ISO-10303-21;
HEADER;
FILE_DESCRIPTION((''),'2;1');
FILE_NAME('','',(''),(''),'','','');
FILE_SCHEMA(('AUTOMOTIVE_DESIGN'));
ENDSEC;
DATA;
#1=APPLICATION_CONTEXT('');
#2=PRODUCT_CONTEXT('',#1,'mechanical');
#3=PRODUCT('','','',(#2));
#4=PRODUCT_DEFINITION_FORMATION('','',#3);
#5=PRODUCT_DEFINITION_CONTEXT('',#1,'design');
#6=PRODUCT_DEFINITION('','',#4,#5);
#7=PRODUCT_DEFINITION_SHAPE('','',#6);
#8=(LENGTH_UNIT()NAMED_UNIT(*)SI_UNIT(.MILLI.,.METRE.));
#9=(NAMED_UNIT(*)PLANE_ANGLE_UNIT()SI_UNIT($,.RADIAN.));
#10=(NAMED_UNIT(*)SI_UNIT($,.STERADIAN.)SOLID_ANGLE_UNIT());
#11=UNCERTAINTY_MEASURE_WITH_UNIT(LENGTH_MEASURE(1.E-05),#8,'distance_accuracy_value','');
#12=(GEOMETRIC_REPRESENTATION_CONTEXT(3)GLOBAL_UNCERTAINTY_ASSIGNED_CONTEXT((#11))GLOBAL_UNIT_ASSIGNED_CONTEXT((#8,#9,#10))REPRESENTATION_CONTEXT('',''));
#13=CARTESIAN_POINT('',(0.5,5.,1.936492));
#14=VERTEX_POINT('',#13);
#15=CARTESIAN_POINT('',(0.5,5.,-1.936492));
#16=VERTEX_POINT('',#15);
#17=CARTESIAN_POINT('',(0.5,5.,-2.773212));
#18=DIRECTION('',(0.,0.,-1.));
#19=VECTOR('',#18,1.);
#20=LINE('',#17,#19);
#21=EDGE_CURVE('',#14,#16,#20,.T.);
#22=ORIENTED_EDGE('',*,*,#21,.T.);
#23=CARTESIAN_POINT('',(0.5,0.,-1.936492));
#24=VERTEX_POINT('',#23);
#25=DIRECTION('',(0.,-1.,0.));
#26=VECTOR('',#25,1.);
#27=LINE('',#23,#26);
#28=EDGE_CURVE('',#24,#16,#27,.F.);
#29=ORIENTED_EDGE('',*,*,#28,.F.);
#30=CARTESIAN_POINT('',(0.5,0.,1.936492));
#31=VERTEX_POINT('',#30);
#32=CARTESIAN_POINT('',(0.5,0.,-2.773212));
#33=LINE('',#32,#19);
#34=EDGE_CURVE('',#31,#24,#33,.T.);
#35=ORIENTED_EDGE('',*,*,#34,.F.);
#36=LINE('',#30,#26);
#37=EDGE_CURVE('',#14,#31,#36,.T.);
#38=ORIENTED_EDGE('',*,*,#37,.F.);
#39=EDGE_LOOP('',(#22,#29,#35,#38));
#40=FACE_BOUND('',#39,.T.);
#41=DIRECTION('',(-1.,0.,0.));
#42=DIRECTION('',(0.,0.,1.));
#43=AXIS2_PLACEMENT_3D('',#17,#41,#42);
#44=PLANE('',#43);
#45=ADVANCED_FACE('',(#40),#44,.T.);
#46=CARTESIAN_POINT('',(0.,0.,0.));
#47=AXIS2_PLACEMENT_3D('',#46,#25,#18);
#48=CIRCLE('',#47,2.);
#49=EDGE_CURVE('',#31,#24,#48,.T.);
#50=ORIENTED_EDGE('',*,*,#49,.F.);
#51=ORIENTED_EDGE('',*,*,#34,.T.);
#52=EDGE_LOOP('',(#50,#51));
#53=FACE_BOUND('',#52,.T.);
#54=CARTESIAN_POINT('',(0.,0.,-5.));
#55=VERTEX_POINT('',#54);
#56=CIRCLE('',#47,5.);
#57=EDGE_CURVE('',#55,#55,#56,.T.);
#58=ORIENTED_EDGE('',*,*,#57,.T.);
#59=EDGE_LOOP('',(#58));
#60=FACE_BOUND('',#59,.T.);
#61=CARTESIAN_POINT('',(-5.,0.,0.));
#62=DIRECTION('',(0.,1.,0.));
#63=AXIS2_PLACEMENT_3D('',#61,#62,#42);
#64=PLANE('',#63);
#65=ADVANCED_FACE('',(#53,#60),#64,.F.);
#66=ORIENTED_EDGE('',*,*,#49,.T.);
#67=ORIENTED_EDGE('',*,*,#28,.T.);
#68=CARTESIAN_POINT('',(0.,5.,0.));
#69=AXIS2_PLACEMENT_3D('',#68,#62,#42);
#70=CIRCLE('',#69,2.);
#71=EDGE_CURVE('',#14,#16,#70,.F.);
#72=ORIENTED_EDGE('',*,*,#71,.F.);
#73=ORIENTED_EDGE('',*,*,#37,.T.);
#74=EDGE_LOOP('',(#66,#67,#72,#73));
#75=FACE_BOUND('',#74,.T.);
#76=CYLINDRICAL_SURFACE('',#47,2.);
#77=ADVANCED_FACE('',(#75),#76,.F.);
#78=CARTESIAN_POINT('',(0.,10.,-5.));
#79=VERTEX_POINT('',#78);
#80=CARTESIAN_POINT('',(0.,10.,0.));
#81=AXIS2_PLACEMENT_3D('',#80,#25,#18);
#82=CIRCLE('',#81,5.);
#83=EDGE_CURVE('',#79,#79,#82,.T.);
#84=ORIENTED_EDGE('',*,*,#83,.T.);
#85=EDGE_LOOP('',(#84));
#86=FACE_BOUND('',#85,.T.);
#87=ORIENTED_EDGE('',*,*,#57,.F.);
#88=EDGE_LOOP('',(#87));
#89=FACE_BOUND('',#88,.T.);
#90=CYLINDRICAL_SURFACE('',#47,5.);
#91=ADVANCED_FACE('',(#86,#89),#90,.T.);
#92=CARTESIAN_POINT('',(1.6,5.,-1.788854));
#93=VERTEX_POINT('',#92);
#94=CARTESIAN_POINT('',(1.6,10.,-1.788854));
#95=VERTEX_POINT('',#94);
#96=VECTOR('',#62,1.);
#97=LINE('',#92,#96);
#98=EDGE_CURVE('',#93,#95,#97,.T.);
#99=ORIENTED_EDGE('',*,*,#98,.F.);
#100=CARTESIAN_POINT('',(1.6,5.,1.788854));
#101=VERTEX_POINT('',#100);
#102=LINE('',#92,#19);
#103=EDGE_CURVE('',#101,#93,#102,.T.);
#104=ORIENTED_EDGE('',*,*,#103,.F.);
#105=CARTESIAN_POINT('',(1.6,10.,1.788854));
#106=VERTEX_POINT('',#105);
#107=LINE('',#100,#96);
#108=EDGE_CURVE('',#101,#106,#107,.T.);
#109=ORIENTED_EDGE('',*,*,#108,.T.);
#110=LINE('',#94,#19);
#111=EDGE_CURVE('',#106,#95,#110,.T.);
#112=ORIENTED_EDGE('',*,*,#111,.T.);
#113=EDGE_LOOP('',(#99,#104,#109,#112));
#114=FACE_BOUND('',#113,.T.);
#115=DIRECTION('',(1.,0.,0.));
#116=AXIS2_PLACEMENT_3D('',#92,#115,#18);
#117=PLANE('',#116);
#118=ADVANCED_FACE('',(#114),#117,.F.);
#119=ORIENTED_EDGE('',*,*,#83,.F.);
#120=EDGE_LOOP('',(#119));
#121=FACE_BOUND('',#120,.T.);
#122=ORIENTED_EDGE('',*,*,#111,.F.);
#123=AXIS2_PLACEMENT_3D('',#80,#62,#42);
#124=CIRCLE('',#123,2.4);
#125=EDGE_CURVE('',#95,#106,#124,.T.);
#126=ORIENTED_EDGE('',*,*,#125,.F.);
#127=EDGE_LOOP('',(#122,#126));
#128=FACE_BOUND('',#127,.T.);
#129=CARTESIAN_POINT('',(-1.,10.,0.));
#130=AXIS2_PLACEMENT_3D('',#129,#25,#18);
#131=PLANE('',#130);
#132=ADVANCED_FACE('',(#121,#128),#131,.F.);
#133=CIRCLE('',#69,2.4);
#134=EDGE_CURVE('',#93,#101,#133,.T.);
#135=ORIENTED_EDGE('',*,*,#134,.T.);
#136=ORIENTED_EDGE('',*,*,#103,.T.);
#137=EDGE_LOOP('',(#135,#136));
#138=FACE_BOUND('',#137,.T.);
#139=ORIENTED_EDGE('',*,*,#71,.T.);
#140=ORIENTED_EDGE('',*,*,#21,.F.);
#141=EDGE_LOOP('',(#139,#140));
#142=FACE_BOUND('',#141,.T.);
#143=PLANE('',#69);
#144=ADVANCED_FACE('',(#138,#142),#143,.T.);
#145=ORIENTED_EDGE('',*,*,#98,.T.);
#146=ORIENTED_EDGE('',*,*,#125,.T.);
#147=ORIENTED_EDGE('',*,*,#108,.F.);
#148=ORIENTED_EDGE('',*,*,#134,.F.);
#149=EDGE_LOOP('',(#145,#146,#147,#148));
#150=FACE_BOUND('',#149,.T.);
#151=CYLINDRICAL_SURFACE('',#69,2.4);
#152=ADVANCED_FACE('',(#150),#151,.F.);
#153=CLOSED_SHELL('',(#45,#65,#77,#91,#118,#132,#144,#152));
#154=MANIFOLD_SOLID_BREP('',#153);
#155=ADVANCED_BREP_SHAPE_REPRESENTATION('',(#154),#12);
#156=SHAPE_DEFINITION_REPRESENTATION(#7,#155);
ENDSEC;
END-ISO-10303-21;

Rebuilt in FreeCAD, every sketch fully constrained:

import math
import FreeCAD as App
import Part
import Sketcher
Q = App.Units.Quantity

doc = App.newDocument("Part")
params = doc.addObject("Spreadsheet::Sheet", "Params")
for row, (alias, value) in enumerate([
    ("sketch1_width", "4 mm"),
    ("sketch1_width2", "3 mm"),
    ("sketch1_height", "10 mm"),
    ("revolution_angle", "360 deg"),
    ("sketch2_radius", "2.4 mm"),
    ("pocket1_length", "5 mm"),
    ("pad1_length", "5 mm"),
], start=1):
    params.set(f"A{row}", alias)
    params.set(f"B{row}", "=" + value)
    params.setAlias(f"B{row}", alias)

body = doc.addObject("PartDesign::Body", "Body")

sketch1 = doc.addObject("Sketcher::SketchObject", "Sketch")
body.addObject(sketch1)
sketch1.AttachmentSupport = (doc.XY_Plane, [""])
sketch1.MapMode = "FlatFace"
sketch1.addGeometry(Part.LineSegment(App.Vector(-1, 10, 0), App.Vector(-5, 10, 0)), False)
sketch1.addGeometry(Part.LineSegment(App.Vector(-5, 10, 0), App.Vector(-5, 0, 0)), False)
sketch1.addGeometry(Part.LineSegment(App.Vector(-5, 0, 0), App.Vector(-2, 0, 0)), False)
sketch1.addGeometry(Part.LineSegment(App.Vector(-2, 0, 0), App.Vector(-2, 5, 0)), False)
sketch1.addGeometry(Part.LineSegment(App.Vector(-2, 5, 0), App.Vector(-1, 5, 0)), False)
sketch1.addGeometry(Part.LineSegment(App.Vector(-1, 5, 0), App.Vector(-1, 10, 0)), False)
sketch1.addConstraint(Sketcher.Constraint("Coincident", 0, 2, 1, 1))
sketch1.addConstraint(Sketcher.Constraint("Coincident", 1, 2, 2, 1))
sketch1.addConstraint(Sketcher.Constraint("Coincident", 2, 2, 3, 1))
sketch1.addConstraint(Sketcher.Constraint("Coincident", 3, 2, 4, 1))
sketch1.addConstraint(Sketcher.Constraint("Coincident", 4, 2, 5, 1))
sketch1.addConstraint(Sketcher.Constraint("Coincident", 5, 2, 0, 1))
sketch1.addConstraint(Sketcher.Constraint("Horizontal", 0))
sketch1.addConstraint(Sketcher.Constraint("Vertical", 1))
sketch1.addConstraint(Sketcher.Constraint("Horizontal", 2))
sketch1.addConstraint(Sketcher.Constraint("Vertical", 3))
sketch1.addConstraint(Sketcher.Constraint("Horizontal", 4))
sketch1.addConstraint(Sketcher.Constraint("Vertical", 5))
sketch1.addConstraint(Sketcher.Constraint("PointOnObject", 1, 2, -1))
sketch1.addConstraint(Sketcher.Constraint("Equal", 3, 5))
sketch1.addConstraint(Sketcher.Constraint("DistanceX", 0, 2, 0, 1, Q("4 mm")))
sketch1.addConstraint(Sketcher.Constraint("DistanceX", 2, 1, 2, 2, Q("3 mm")))
sketch1.addConstraint(Sketcher.Constraint("DistanceY", 1, 2, 1, 1, Q("10 mm")))
sketch1.addConstraint(Sketcher.Constraint("DistanceX", 0, 2, -1, 1, Q("5 mm")))
sketch1.setExpression("Constraints[14]", "Params.sketch1_width")
sketch1.setExpression("Constraints[15]", "Params.sketch1_width2")
sketch1.setExpression("Constraints[16]", "Params.sketch1_height")
revolution = doc.addObject("PartDesign::Revolution", "Revolution")
body.addObject(revolution)
revolution.Profile = sketch1
revolution.ReferenceAxis = (sketch1, ["V_Axis"])
revolution.setExpression("Angle", "Params.revolution_angle")

sketch2 = doc.addObject("Sketcher::SketchObject", "Sketch001")
body.addObject(sketch2)
sketch2.AttachmentSupport = (doc.XZ_Plane, [""])
sketch2.MapMode = "FlatFace"
sketch2.AttachmentOffset = App.Placement(App.Vector(0, 0, -10), App.Rotation())
sketch2.addGeometry(Part.LineSegment(App.Vector(1.6, 1.788854, 0), App.Vector(1.6, -1.788854, 0)), False)
sketch2.addGeometry(Part.ArcOfCircle(Part.Circle(App.Vector(0, 0, 0), App.Vector(0, 0, 1), 2.4), math.radians(48.189685), math.radians(311.810315)), False)
sketch2.addConstraint(Sketcher.Constraint("Coincident", 0, 1, 1, 1))
sketch2.addConstraint(Sketcher.Constraint("Coincident", 1, 2, 0, 2))
sketch2.addConstraint(Sketcher.Constraint("Vertical", 0))
sketch2.addConstraint(Sketcher.Constraint("Coincident", 1, 3, -1, 1))
sketch2.addConstraint(Sketcher.Constraint("Radius", 1, Q("2.4 mm")))
sketch2.addConstraint(Sketcher.Constraint("DistanceX", -1, 1, 0, 1, Q("1.6 mm")))
sketch2.setExpression("Constraints[4]", "Params.sketch2_radius")
pocket1 = doc.addObject("PartDesign::Pocket", "Pocket")
body.addObject(pocket1)
pocket1.Profile = sketch2
pocket1.setExpression("Length", "Params.pocket1_length")
pocket1.Reversed = True

sketch3 = doc.addObject("Sketcher::SketchObject", "Sketch002")
body.addObject(sketch3)
sketch3.AttachmentSupport = (doc.XZ_Plane, [""])
sketch3.MapMode = "FlatFace"
sketch3.addGeometry(Part.LineSegment(App.Vector(0.5, 2.705119, 0), App.Vector(0.5, -2.773212, 0)), False)
sketch3.addGeometry(Part.LineSegment(App.Vector(0.5, -2.773212, 0), App.Vector(3.013226, -2.773212, 0)), False)
sketch3.addGeometry(Part.LineSegment(App.Vector(3.013226, -2.773212, 0), App.Vector(3.013226, 2.705119, 0)), False)
sketch3.addGeometry(Part.LineSegment(App.Vector(3.013226, 2.705119, 0), App.Vector(0.5, 2.705119, 0)), False)
sketch3.addConstraint(Sketcher.Constraint("Coincident", 0, 2, 1, 1))
sketch3.addConstraint(Sketcher.Constraint("Coincident", 1, 2, 2, 1))
sketch3.addConstraint(Sketcher.Constraint("Coincident", 2, 2, 3, 1))
sketch3.addConstraint(Sketcher.Constraint("Coincident", 3, 2, 0, 1))
sketch3.addConstraint(Sketcher.Constraint("Vertical", 0))
sketch3.addConstraint(Sketcher.Constraint("Horizontal", 1))
sketch3.addConstraint(Sketcher.Constraint("Vertical", 2))
sketch3.addConstraint(Sketcher.Constraint("Horizontal", 3))
sketch3.addConstraint(Sketcher.Constraint("DistanceX", -1, 1, 0, 2, Q("0.5 mm")))
sketch3.addConstraint(Sketcher.Constraint("DistanceY", 0, 2, 0, 1, Q("5.478331 mm")))
sketch3.addConstraint(Sketcher.Constraint("DistanceX", 1, 1, 1, 2, Q("2.513226 mm")))
sketch3.addConstraint(Sketcher.Constraint("DistanceY", -1, 1, 2, 2, Q("2.705119 mm")))
pad1 = doc.addObject("PartDesign::Pad", "Pad")
body.addObject(pad1)
pad1.Profile = sketch3
pad1.setExpression("Length", "Params.pad1_length")
pad1.Reversed = True

doc.recompute()
